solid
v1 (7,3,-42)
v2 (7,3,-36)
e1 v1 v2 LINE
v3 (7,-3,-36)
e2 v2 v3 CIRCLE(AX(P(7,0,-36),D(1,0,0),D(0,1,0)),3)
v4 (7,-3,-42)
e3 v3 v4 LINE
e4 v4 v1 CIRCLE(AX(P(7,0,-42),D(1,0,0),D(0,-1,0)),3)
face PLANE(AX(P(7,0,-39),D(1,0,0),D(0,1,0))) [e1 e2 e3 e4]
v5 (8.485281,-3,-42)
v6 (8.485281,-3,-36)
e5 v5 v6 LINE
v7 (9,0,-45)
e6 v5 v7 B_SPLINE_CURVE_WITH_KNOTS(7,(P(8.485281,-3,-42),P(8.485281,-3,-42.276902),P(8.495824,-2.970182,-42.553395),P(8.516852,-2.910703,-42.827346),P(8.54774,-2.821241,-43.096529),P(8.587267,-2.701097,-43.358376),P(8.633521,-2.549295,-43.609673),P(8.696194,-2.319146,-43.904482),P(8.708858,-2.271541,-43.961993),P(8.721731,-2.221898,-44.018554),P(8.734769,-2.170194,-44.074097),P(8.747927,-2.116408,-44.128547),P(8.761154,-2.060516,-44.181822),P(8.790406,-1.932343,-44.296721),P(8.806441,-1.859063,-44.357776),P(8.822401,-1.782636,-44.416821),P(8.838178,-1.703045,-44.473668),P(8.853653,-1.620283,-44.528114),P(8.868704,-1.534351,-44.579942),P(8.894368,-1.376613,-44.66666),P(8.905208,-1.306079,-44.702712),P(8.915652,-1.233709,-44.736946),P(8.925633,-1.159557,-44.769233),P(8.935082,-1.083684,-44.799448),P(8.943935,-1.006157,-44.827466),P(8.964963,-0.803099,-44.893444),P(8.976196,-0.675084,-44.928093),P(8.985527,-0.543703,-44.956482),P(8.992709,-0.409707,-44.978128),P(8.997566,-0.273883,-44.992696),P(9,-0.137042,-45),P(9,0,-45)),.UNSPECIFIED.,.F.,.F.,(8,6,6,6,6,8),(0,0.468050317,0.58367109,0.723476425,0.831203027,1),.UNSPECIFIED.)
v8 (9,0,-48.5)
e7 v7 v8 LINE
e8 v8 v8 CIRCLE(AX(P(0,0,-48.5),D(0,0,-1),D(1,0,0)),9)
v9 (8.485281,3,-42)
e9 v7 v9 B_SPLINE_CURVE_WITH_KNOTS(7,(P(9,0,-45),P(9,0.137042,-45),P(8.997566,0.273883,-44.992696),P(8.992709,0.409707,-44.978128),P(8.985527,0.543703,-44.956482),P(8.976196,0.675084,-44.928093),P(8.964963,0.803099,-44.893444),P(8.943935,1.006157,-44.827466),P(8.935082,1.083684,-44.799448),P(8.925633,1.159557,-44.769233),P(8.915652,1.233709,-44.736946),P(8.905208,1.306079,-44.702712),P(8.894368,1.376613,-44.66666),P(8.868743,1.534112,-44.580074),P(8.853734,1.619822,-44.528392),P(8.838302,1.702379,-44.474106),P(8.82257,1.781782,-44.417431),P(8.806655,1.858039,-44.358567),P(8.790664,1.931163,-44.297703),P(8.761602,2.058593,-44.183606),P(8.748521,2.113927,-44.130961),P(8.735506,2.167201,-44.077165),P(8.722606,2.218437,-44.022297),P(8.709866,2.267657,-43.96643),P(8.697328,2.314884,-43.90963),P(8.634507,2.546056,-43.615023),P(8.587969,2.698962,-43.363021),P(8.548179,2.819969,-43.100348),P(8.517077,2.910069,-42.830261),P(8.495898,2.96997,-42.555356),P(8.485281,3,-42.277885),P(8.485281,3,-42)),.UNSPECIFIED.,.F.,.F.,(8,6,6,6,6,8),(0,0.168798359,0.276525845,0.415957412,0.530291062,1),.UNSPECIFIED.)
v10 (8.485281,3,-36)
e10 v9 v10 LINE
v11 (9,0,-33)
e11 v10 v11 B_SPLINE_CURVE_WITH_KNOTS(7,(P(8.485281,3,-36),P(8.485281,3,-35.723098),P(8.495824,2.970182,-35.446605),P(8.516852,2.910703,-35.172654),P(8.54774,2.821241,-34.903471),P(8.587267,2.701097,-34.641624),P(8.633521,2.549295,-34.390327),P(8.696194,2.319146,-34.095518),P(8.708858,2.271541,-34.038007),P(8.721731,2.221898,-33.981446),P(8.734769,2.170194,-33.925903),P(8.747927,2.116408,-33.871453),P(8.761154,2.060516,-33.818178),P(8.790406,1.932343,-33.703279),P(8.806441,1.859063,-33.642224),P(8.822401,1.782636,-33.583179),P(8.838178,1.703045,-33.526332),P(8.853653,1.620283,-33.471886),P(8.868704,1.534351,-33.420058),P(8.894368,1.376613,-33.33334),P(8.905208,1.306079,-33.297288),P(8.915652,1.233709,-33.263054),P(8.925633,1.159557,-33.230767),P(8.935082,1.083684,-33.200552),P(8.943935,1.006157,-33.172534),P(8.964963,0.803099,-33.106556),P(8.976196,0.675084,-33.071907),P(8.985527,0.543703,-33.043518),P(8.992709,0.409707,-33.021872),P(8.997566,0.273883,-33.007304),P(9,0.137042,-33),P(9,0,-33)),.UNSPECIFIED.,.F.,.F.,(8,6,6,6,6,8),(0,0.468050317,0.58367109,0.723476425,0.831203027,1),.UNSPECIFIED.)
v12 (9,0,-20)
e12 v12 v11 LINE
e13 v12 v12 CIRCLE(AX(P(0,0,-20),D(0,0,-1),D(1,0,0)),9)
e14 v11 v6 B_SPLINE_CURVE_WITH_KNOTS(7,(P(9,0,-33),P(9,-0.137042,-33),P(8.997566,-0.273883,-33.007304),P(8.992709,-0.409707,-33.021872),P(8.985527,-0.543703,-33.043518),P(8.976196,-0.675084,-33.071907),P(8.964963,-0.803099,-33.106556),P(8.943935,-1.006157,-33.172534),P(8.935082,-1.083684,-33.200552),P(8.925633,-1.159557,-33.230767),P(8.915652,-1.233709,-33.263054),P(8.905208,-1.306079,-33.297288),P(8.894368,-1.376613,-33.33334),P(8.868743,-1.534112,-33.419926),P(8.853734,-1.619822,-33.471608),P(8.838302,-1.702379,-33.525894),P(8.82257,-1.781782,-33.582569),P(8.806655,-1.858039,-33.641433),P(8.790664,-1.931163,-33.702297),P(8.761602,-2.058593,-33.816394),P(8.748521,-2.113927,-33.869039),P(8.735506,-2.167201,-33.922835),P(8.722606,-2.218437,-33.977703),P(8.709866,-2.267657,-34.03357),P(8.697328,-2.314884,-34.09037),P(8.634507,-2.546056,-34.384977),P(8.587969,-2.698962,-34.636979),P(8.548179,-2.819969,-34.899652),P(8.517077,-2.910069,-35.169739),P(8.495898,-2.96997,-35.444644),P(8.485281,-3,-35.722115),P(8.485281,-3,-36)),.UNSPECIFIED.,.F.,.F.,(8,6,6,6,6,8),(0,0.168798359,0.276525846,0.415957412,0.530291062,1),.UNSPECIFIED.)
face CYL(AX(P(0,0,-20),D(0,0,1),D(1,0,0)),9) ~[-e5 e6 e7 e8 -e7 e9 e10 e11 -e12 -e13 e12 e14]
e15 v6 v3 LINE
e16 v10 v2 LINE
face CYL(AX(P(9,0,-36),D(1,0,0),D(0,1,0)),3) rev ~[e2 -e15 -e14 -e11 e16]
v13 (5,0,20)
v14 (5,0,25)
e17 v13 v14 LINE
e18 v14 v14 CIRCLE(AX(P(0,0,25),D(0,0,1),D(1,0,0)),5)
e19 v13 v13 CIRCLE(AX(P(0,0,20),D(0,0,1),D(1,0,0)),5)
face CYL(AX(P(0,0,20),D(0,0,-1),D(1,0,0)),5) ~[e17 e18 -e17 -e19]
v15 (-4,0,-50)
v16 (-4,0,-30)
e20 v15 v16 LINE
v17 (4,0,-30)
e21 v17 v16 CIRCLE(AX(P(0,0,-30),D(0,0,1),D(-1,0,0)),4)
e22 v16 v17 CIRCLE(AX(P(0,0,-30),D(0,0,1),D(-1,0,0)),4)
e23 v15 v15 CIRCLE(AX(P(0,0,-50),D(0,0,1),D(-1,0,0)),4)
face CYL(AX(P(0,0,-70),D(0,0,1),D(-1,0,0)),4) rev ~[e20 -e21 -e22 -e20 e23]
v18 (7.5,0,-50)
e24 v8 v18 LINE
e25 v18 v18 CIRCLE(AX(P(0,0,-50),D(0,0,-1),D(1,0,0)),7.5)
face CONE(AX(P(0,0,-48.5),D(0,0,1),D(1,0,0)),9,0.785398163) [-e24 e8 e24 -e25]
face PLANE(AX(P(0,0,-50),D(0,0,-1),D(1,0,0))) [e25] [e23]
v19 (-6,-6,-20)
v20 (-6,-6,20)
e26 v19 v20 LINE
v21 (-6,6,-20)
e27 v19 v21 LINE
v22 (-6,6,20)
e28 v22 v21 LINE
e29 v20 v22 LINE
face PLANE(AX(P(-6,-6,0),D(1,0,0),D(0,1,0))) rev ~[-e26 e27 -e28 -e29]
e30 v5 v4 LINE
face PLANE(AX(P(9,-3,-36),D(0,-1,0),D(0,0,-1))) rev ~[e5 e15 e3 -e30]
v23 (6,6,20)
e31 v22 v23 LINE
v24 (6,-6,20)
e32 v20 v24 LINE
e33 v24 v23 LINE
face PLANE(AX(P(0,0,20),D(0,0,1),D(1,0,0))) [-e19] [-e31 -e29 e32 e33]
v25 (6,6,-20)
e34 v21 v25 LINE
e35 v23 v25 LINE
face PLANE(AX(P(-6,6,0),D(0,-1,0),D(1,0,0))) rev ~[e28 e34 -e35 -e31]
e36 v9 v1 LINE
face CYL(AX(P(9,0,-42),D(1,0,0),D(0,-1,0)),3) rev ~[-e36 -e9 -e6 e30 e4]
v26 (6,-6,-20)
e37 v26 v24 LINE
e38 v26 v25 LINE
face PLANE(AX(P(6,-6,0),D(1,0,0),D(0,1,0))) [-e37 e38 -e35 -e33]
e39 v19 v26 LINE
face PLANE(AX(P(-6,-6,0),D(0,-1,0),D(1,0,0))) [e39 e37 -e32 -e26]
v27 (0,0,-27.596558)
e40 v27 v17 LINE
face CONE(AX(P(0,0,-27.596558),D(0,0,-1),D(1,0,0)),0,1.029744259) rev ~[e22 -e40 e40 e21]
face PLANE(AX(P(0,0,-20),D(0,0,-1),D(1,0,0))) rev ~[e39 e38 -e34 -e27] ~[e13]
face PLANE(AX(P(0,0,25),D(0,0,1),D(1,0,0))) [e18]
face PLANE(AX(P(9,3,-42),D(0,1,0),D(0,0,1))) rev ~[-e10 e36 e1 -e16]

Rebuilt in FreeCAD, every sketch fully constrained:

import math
import FreeCAD as App
import Part
import Sketcher
from FreeCAD import Vector


def edges_at(feature, points):
    """Names of the edges that pass closest to the given points."""
    edges = feature.Shape.Edges
    near = lambda p: min(range(len(edges)), key=lambda i: edges[i].distToShape(Part.Vertex(*p))[0])
    return sorted({f"Edge{near(p) + 1}" for p in points})


def add_polygon(sketch, points):
    """Adds a closed chain of lines whose ends are joined by coincident constraints."""
    first, n = sketch.GeometryCount, len(points)
    for a, b in zip(points, points[1:] + points[:1]):
        sketch.addGeometry(Part.LineSegment(App.Vector(*a, 0), App.Vector(*b, 0)), False)
    for i in range(n):
        sketch.addConstraint(Sketcher.Constraint("Coincident", first + i, 2, first + (i + 1) % n, 1))

doc = App.newDocument("Part")
body = doc.addObject("PartDesign::Body", "Body")

sketch1 = body.newObject("Sketcher::SketchObject", "Sketch")
sketch1.AttachmentSupport = (doc.getObject("XY_Plane"), [""])
sketch1.MapMode = "FlatFace"
add_polygon(sketch1, [(-6, 6), (-6, -6), (6, -6), (6, 6)])
sketch1.addConstraint(Sketcher.Constraint("Vertical", 0))
sketch1.addConstraint(Sketcher.Constraint("Horizontal", 1))
sketch1.addConstraint(Sketcher.Constraint("Vertical", 2))
sketch1.addConstraint(Sketcher.Constraint("Horizontal", 3))
sketch1.addConstraint(Sketcher.Constraint("Symmetric", 0, 2, 2, 2, -1, 1))
sketch1.addConstraint(Sketcher.Constraint("Equal", 3, 0))
sketch1.addConstraint(Sketcher.Constraint("DistanceX", 1, 1, 1, 2, 12.0))
pad1 = body.newObject("PartDesign::Pad", "Pad")
pad1.Profile = sketch1
pad1.Length = 40
pad1.Midplane = True

sketch2 = body.newObject("Sketcher::SketchObject", "Sketch001")
sketch2.AttachmentSupport = (doc.getObject("XY_Plane"), [""])
sketch2.MapMode = "FlatFace"
sketch2.AttachmentOffset = App.Placement(Vector(0, 0, 20), App.Rotation())
sketch2.addGeometry(Part.Circle(Vector(0, 0, 0), Vector(0, 0, 1), 5), False)
sketch2.addConstraint(Sketcher.Constraint("Coincident", 0, 3, -1, 1))
sketch2.addConstraint(Sketcher.Constraint("Diameter", 0, 10.0))
pad2 = body.newObject("PartDesign::Pad", "Pad001")
pad2.Profile = sketch2
pad2.Length = 5

sketch3 = body.newObject("Sketcher::SketchObject", "Sketch002")
sketch3.AttachmentSupport = (doc.getObject("XY_Plane"), [""])
sketch3.MapMode = "FlatFace"
sketch3.AttachmentOffset = App.Placement(Vector(0, 0, -20), App.Rotation())
sketch3.addGeometry(Part.Circle(Vector(0, 0, 0), Vector(0, 0, 1), 9), False)
sketch3.addConstraint(Sketcher.Constraint("Coincident", 0, 3, -1, 1))
sketch3.addConstraint(Sketcher.Constraint("Diameter", 0, 18.0))
pad3 = body.newObject("PartDesign::Pad", "Pad002")
pad3.Profile = sketch3
pad3.Length = 30
pad3.Reversed = True

sketch4 = body.newObject("Sketcher::SketchObject", "Sketch003")
sketch4.AttachmentSupport = (doc.getObject("YZ_Plane"), [""])
sketch4.MapMode = "FlatFace"
sketch4.AttachmentOffset = App.Placement(Vector(0, 0, 9), App.Rotation())
sketch4.addGeometry(Part.LineSegment(Vector(-3, -36, 0), Vector(-3, -42, 0)), False)
sketch4.addGeometry(Part.ArcOfCircle(Part.Circle(Vector(0, -42, 0), Vector(0, 0, 1), 3), math.radians(180), math.radians(360)), False)
sketch4.addGeometry(Part.LineSegment(Vector(3, -42, 0), Vector(3, -36, 0)), False)
sketch4.addGeometry(Part.ArcOfCircle(Part.Circle(Vector(0, -36, 0), Vector(0, 0, 1), 3), math.radians(0), math.radians(180)), False)
sketch4.addConstraint(Sketcher.Constraint("Tangent", 0, 2, 1, 1))
sketch4.addConstraint(Sketcher.Constraint("Tangent", 1, 2, 2, 1))
sketch4.addConstraint(Sketcher.Constraint("Tangent", 2, 2, 3, 1))
sketch4.addConstraint(Sketcher.Constraint("Tangent", 3, 2, 0, 1))
sketch4.addConstraint(Sketcher.Constraint("Vertical", 0))
sketch4.addConstraint(Sketcher.Constraint("Vertical", 2))
sketch4.addConstraint(Sketcher.Constraint("PointOnObject", 1, 3, -2))
sketch4.addConstraint(Sketcher.Constraint("Radius", 1, 3.0))
sketch4.addConstraint(Sketcher.Constraint("DistanceY", 0, 2, 0, 1, 6.0))
sketch4.addConstraint(Sketcher.Constraint("DistanceY", 1, 3, -1, 1, 42.0))
pocket1 = body.newObject("PartDesign::Pocket", "Pocket")
pocket1.Profile = sketch4
pocket1.Length = 2

sketch5 = body.newObject("Sketcher::SketchObject", "Sketch004")
sketch5.AttachmentSupport = (doc.getObject("XY_Plane"), [""])
sketch5.MapMode = "FlatFace"
sketch5.AttachmentOffset = App.Placement(Vector(0, 0, -50), App.Rotation())
sketch5.addGeometry(Part.Circle(Vector(0, 0, 0), Vector(0, 0, 1), 4), False)
sketch5.addConstraint(Sketcher.Constraint("Coincident", 0, 3, -1, 1))
sketch5.addConstraint(Sketcher.Constraint("Diameter", 0, 8.0))
doc.recompute()
hole = body.newObject("PartDesign::Hole", "Hole")
hole.Profile = sketch5
hole.ThreadType = "None"
hole.Diameter = 8
hole.DepthType = "Dimension"
hole.Depth = 20
hole.DrillPoint = "Angled"
hole.DrillPointAngle = 118
hole.Reversed = True
doc.recompute()

chamfer = body.newObject("PartDesign::Chamfer", "Chamfer")
chamfer.Base = (hole, edges_at(hole, [(-9, 0, -50)]))
chamfer.Size = 1.5

doc.recompute()
